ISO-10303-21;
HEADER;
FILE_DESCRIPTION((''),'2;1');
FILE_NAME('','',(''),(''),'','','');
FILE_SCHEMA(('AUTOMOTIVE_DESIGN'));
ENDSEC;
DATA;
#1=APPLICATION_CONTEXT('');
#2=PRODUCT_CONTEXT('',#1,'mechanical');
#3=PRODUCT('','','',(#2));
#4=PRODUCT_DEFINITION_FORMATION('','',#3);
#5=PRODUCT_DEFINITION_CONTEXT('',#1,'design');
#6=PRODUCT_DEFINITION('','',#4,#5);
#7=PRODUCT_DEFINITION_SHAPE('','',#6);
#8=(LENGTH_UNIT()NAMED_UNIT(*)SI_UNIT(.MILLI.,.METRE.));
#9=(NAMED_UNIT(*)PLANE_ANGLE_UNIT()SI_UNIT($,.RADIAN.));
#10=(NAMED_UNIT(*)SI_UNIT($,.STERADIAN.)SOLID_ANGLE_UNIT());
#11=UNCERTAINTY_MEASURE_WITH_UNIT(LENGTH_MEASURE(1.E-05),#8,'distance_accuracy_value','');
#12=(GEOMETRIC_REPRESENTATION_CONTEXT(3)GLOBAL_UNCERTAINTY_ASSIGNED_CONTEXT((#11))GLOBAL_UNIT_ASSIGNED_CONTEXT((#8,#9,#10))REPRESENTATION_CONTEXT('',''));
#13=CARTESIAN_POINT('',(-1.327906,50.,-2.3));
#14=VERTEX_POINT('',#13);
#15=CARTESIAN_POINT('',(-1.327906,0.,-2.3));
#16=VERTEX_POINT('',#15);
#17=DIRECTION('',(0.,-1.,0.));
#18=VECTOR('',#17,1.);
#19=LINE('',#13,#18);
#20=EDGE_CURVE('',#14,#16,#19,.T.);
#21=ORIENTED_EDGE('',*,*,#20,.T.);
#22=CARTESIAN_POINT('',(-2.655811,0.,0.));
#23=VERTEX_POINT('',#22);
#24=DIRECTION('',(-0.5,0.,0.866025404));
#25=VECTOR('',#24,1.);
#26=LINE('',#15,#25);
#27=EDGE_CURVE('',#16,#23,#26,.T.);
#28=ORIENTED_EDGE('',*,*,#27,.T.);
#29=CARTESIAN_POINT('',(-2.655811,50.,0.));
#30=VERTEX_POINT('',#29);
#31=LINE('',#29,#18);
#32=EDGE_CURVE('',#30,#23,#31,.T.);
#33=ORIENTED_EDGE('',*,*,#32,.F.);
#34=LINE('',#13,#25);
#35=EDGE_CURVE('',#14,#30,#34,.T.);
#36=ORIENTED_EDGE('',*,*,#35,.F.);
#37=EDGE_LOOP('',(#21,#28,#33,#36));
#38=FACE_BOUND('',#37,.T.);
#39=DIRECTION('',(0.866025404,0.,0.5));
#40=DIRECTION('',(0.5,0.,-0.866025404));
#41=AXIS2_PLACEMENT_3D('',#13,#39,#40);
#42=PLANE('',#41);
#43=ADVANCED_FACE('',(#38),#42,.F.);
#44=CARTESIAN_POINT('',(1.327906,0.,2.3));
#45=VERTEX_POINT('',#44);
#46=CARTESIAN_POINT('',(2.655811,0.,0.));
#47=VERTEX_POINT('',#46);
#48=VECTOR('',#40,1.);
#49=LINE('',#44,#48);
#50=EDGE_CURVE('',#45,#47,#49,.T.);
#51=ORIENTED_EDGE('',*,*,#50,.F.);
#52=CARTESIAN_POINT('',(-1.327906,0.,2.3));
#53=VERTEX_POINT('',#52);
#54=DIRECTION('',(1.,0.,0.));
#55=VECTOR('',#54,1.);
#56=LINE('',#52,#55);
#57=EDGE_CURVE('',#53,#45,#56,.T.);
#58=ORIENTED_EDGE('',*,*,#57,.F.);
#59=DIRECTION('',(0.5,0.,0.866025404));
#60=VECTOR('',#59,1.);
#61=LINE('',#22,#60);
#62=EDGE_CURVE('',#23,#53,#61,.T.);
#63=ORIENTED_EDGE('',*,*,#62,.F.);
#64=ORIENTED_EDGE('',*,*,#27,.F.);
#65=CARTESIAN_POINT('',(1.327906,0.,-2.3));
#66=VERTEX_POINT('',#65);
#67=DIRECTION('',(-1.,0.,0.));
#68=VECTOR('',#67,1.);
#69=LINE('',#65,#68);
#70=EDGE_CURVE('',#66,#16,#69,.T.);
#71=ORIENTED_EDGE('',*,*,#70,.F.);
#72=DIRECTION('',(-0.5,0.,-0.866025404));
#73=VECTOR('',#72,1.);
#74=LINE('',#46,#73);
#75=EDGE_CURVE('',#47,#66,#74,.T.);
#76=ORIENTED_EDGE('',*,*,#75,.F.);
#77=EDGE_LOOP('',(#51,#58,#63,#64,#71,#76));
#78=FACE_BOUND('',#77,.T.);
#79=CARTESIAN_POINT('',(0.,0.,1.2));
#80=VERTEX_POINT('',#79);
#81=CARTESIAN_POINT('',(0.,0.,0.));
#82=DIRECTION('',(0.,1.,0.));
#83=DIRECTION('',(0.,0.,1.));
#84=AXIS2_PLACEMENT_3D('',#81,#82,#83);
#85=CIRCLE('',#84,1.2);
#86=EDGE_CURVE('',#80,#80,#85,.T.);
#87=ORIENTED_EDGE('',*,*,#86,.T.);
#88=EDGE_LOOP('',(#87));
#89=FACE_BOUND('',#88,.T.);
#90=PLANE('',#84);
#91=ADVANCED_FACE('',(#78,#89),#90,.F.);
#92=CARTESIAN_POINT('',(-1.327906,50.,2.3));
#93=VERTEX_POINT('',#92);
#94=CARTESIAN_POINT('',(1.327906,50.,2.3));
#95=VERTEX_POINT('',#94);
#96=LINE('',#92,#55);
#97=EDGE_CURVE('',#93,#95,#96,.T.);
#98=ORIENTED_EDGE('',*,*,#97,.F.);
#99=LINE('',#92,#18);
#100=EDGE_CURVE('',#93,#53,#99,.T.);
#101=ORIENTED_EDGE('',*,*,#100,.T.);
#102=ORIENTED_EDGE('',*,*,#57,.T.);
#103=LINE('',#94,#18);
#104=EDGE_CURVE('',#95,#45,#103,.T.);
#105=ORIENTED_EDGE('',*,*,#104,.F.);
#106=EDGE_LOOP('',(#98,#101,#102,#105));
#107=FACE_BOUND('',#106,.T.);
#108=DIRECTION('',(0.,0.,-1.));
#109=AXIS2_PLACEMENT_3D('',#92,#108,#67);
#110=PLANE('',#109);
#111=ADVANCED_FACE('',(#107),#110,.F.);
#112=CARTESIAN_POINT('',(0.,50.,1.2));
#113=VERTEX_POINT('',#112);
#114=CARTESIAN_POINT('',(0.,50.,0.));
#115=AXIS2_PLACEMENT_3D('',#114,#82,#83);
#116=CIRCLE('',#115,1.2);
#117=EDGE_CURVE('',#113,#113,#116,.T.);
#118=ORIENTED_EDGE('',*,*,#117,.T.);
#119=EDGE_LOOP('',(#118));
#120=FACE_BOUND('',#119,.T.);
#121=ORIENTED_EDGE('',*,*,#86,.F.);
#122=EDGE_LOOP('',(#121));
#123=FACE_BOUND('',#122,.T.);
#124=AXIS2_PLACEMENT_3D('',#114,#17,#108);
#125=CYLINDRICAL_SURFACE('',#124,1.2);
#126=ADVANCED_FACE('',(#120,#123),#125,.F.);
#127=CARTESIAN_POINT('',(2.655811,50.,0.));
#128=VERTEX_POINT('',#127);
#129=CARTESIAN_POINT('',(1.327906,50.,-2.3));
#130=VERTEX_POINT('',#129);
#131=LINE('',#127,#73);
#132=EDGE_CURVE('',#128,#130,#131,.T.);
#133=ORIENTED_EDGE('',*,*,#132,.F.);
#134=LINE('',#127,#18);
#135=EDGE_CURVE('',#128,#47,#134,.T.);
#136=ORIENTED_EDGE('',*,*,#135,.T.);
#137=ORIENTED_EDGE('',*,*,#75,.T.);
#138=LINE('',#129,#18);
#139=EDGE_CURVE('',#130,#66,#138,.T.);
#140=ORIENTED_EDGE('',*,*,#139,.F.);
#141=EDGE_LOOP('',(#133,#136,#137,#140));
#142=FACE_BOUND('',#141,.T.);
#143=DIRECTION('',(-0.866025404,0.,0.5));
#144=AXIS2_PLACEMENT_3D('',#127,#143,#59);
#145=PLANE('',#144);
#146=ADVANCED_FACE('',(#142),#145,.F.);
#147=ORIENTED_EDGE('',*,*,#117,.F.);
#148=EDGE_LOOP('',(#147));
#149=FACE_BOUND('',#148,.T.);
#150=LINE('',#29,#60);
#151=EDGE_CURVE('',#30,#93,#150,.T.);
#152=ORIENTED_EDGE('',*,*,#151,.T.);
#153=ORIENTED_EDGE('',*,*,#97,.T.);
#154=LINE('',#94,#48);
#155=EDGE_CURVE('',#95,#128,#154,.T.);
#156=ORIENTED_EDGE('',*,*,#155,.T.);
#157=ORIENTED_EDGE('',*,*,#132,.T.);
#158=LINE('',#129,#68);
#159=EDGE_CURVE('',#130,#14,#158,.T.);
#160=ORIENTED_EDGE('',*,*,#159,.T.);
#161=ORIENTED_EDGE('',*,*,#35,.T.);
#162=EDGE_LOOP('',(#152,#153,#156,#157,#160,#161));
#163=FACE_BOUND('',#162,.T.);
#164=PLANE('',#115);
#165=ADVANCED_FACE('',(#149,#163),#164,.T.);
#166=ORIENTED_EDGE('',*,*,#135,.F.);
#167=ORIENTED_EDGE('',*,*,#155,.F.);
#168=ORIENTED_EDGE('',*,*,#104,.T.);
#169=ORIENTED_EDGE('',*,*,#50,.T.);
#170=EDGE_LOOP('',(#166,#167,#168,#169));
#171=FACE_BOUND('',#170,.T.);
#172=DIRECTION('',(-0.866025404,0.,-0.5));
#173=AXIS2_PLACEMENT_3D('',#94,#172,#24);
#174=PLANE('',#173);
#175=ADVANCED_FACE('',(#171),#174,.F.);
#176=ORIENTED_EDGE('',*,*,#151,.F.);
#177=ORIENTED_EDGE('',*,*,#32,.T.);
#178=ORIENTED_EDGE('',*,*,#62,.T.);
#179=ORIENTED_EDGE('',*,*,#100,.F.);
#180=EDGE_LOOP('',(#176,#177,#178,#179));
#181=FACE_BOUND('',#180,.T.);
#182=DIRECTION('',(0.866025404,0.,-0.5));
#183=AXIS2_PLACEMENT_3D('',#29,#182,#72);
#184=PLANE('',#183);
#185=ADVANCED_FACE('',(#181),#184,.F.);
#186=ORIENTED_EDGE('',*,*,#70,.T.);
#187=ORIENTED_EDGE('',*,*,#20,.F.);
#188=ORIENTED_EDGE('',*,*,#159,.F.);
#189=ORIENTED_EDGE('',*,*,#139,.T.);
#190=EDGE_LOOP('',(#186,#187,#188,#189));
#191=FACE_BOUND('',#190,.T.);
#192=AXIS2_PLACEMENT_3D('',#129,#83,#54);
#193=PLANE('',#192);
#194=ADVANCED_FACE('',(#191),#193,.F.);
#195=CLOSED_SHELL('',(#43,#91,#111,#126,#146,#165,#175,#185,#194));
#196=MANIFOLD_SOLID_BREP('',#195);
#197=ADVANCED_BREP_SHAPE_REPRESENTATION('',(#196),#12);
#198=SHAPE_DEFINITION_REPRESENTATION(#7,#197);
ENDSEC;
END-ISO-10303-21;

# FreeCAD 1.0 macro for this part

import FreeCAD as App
import Part
import Sketcher
Q = App.Units.Quantity


def add_polygon(sketch, points):
    """Adds a closed chain of lines whose ends are joined by coincident constraints."""
    first, n = sketch.GeometryCount, len(points)
    for a, b in zip(points, points[1:] + points[:1]):
        sketch.addGeometry(Part.LineSegment(App.Vector(*a, 0), App.Vector(*b, 0)), False)
    for i in range(n):
        sketch.addConstraint(Sketcher.Constraint("Coincident", first + i, 2, first + (i + 1) % n, 1))

doc = App.newDocument("Part")
params = doc.addObject("Spreadsheet::Sheet", "Params")
for row, (alias, value) in enumerate([
    ("sketch1_diameter", "2.4 mm"),
    ("pad1_length", "50 mm"),
], start=1):
    params.set(f"A{row}", alias)
    params.set(f"B{row}", "=" + value)
    params.setAlias(f"B{row}", alias)

body = doc.addObject("PartDesign::Body", "Body")

sketch1 = body.newObject("Sketcher::SketchObject", "Sketch")
sketch1.AttachmentSupport = (doc.getObject("XZ_Plane"), [""])
sketch1.MapMode = "FlatFace"
add_polygon(sketch1, [(2.7, 0), (1.3, -2.3), (-1.3, -2.3), (-2.7, 0), (-1.3, 2.3), (1.3, 2.3)])
sketch1.addGeometry(Part.Circle(App.Vector(0, 0, 0), App.Vector(0, 0, 1), 1.2), False)
sketch1.addConstraint(Sketcher.Constraint("Horizontal", 1))
sketch1.addConstraint(Sketcher.Constraint("Horizontal", 4))
sketch1.addConstraint(Sketcher.Constraint("Coincident", 6, 3, -1, 1))
sketch1.addConstraint(Sketcher.Constraint("Symmetric", 0, 2, 3, 2, -1, 1))
sketch1.addConstraint(Sketcher.Constraint("Symmetric", 2, 2, 5, 2, -1, 1))
sketch1.addConstraint(Sketcher.Constraint("PointOnObject", 2, 2, -1))
sketch1.addConstraint(Sketcher.Constraint("Parallel", 2, 5))
sketch1.addConstraint(Sketcher.Constraint("Vertical", 1, 2, 3, 2))
sketch1.addConstraint(Sketcher.Constraint("Diameter", 6, Q("2.4 mm")))
sketch1.addConstraint(Sketcher.Constraint("Angle", 0, Q("-120 deg")))
sketch1.addConstraint(Sketcher.Constraint("DistanceY", 0, 2, -1, 1, Q("2.3 mm")))
sketch1.addConstraint(Sketcher.Constraint("DistanceX", 1, 2, 1, 1, Q("2.655811 mm")))
sketch1.setExpression("Constraints[14]", "Params.sketch1_diameter")
pad1 = body.newObject("PartDesign::Pad", "Pad")
pad1.Profile = sketch1
pad1.setExpression("Length", "Params.pad1_length")
pad1.Reversed = True

doc.recompute()
